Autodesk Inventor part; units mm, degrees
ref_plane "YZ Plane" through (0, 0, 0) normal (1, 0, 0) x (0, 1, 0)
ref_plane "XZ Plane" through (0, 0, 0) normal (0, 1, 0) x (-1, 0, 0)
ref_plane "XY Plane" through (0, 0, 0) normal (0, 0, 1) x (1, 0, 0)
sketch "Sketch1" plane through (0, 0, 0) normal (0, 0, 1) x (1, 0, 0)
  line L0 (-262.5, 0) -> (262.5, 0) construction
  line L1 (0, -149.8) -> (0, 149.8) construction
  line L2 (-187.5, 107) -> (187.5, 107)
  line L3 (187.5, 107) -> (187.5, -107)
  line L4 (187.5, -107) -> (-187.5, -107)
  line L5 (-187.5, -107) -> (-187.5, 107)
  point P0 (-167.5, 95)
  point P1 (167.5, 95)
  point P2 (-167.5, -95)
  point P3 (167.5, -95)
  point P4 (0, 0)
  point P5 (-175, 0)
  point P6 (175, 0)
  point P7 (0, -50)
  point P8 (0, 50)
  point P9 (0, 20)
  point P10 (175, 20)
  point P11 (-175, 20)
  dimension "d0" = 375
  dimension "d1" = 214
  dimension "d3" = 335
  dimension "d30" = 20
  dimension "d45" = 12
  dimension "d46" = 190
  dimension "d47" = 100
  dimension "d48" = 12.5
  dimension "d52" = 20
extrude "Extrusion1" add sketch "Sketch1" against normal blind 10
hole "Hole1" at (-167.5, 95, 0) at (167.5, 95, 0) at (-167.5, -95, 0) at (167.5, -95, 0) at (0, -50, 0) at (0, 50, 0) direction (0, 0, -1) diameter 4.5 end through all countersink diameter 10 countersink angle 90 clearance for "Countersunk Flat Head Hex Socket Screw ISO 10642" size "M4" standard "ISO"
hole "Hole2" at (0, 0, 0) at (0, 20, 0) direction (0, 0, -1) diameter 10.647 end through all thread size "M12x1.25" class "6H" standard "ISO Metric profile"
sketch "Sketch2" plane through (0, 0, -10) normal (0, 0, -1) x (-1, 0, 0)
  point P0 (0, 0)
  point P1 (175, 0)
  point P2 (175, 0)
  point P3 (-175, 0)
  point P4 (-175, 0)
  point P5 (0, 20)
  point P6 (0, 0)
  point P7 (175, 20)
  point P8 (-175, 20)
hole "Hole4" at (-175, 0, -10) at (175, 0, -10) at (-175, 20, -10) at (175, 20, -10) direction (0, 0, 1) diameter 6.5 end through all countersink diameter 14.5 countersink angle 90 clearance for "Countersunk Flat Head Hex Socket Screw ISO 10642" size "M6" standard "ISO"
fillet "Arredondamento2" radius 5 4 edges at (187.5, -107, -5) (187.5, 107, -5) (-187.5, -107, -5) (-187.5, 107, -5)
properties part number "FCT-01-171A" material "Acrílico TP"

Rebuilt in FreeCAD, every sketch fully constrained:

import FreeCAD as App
import Part
import Sketcher


def edges_at(feature, points):
    """Names of the edges that pass closest to the given points."""
    edges = feature.Shape.Edges
    near = lambda p: min(range(len(edges)), key=lambda i: edges[i].distToShape(Part.Vertex(*p))[0])
    return sorted({f"Edge{near(p) + 1}" for p in points})


def add_polygon(sketch, points):
    """Adds a closed chain of lines whose ends are joined by coincident constraints."""
    first, n = sketch.GeometryCount, len(points)
    for a, b in zip(points, points[1:] + points[:1]):
        sketch.addGeometry(Part.LineSegment(App.Vector(*a, 0), App.Vector(*b, 0)), False)
    for i in range(n):
        sketch.addConstraint(Sketcher.Constraint("Coincident", first + i, 2, first + (i + 1) % n, 1))

doc = App.newDocument("Part")
body = doc.addObject("PartDesign::Body", "Body")

sketch1 = doc.addObject("Sketcher::SketchObject", "Sketch")
body.addObject(sketch1)
sketch1.AttachmentSupport = (doc.XY_Plane, [""])
sketch1.MapMode = "FlatFace"
add_polygon(sketch1, [(188, 107), (-188, 107), (-188, -107), (188, -107)])
sketch1.addConstraint([
    Sketcher.Constraint("Horizontal", 0),
    Sketcher.Constraint("Vertical", 1),
    Sketcher.Constraint("Horizontal", 2),
    Sketcher.Constraint("Vertical", 3),
    Sketcher.Constraint("Symmetric", 0, 2, 2, 2, -1, 1),
    Sketcher.Constraint("DistanceX", 0, 2, 0, 1, 375.0),
    Sketcher.Constraint("DistanceY", 1, 2, 1, 1, 214.0),
])
pad1 = doc.addObject("PartDesign::Pad", "Pad")
body.addObject(pad1)
pad1.Profile = sketch1
pad1.Length = 10
pad1.Reversed = True

sketch2 = doc.addObject("Sketcher::SketchObject", "Sketch001")
body.addObject(sketch2)
sketch2.AttachmentSupport = (doc.XY_Plane, [""])
sketch2.MapMode = "FlatFace"
sketch2.addGeometry([
    Part.Circle(App.Vector(-167.5, 95, 0), App.Vector(0, 0, 1), 2.2),
    Part.Circle(App.Vector(167.5, 95, 0), App.Vector(0, 0, 1), 2.2),
    Part.Circle(App.Vector(-167.5, -95, 0), App.Vector(0, 0, 1), 2.2),
    Part.Circle(App.Vector(167.5, -95, 0), App.Vector(0, 0, 1), 2.2),
    Part.Circle(App.Vector(0, -50, 0), App.Vector(0, 0, 1), 2.2),
    Part.Circle(App.Vector(0, 50, 0), App.Vector(0, 0, 1), 2.2),
], False)
sketch2.addConstraint([
    Sketcher.Constraint("Equal", 0, 1),
    Sketcher.Constraint("Equal", 1, 2),
    Sketcher.Constraint("Equal", 2, 3),
    Sketcher.Constraint("Equal", 3, 4),
    Sketcher.Constraint("Equal", 4, 5),
    Sketcher.Constraint("Symmetric", 1, 3, 2, 3, -1, 1),
    Sketcher.Constraint("Symmetric", 0, 3, 3, 3, -1, 1),
    Sketcher.Constraint("Symmetric", 4, 3, 5, 3, -1, 1),
    Sketcher.Constraint("Symmetric", 0, 3, 1, 3, -2),
    Sketcher.Constraint("PointOnObject", 4, 3, -2),
    Sketcher.Constraint("Diameter", 0, 4.5),
    Sketcher.Constraint("DistanceY", -1, 1, 0, 3, 95.0),
    Sketcher.Constraint("DistanceY", 4, 3, -1, 1, 50.0),
    Sketcher.Constraint("DistanceX", 0, 3, 1, 3, 335.0),
])
doc.recompute()
hole = doc.addObject("PartDesign::Hole", "Hole")
body.addObject(hole)
hole.Profile = sketch2
hole.ThreadType = "None"
hole.Diameter = 4.5
hole.DepthType = "ThroughAll"
hole.HoleCutType = "Countersink"
hole.HoleCutDiameter = 10
hole.HoleCutCountersinkAngle = 90

sketch3 = doc.addObject("Sketcher::SketchObject", "Sketch002")
body.addObject(sketch3)
sketch3.AttachmentSupport = (doc.XY_Plane, [""])
sketch3.MapMode = "FlatFace"
sketch3.addGeometry([
    Part.Circle(App.Vector(0, 0, 0), App.Vector(0, 0, 1), 5),
    Part.Circle(App.Vector(0, 20, 0), App.Vector(0, 0, 1), 5),
], False)
sketch3.addConstraint([
    Sketcher.Constraint("Coincident", 0, 3, -1, 1),
    Sketcher.Constraint("Equal", 0, 1),
    Sketcher.Constraint("PointOnObject", 1, 3, -2),
    Sketcher.Constraint("Diameter", 0, 10.647),
    Sketcher.Constraint("DistanceY", -1, 1, 1, 3, 20.0),
])
doc.recompute()
hole2 = doc.addObject("PartDesign::Hole", "Hole001")
body.addObject(hole2)
hole2.Profile = sketch3
hole2.ThreadType = "None"
hole2.Diameter = 10.647
hole2.DepthType = "ThroughAll"

sketch4 = doc.addObject("Sketcher::SketchObject", "Sketch003")
body.addObject(sketch4)
sketch4.AttachmentSupport = (doc.XY_Plane, [""])
sketch4.MapMode = "FlatFace"
sketch4.AttachmentOffset = App.Placement(App.Vector(0, 0, -10), App.Rotation())
sketch4.addGeometry([
    Part.Circle(App.Vector(-175, 0, 0), App.Vector(0, 0, 1), 3.2),
    Part.Circle(App.Vector(175, 0, 0), App.Vector(0, 0, 1), 3.2),
    Part.Circle(App.Vector(-175, 20, 0), App.Vector(0, 0, 1), 3.2),
    Part.Circle(App.Vector(175, 20, 0), App.Vector(0, 0, 1), 3.2),
], False)
sketch4.addConstraint([
    Sketcher.Constraint("Equal", 0, 1),
    Sketcher.Constraint("Equal", 1, 2),
    Sketcher.Constraint("Equal", 2, 3),
    Sketcher.Constraint("Symmetric", 0, 3, 1, 3, -1, 1),
    Sketcher.Constraint("Symmetric", 2, 3, 3, 3, -2),
    Sketcher.Constraint("PointOnObject", 0, 3, -1),
    Sketcher.Constraint("Vertical", 0, 3, 2, 3),
    Sketcher.Constraint("Diameter", 0, 6.5),
    Sketcher.Constraint("DistanceX", 0, 3, -1, 1, 175.0),
    Sketcher.Constraint("DistanceY", -1, 1, 2, 3, 20.0),
])
doc.recompute()
hole3 = doc.addObject("PartDesign::Hole", "Hole002")
body.addObject(hole3)
hole3.Profile = sketch4
hole3.ThreadType = "None"
hole3.Diameter = 6.5
hole3.DepthType = "ThroughAll"
hole3.HoleCutType = "Countersink"
hole3.HoleCutDiameter = 14.5
hole3.HoleCutCountersinkAngle = 90
hole3.Reversed = True
doc.recompute()

fillet = doc.addObject("PartDesign::Fillet", "Fillet")
body.addObject(fillet)
fillet.Base = (hole3, edges_at(hole3, [
    (187.5, -107, -5),
    (187.5, 107, -5),
    (-187.5, -107, -5),
    (-187.5, 107, -5),
]))
fillet.Radius = 5

doc.recompute()
